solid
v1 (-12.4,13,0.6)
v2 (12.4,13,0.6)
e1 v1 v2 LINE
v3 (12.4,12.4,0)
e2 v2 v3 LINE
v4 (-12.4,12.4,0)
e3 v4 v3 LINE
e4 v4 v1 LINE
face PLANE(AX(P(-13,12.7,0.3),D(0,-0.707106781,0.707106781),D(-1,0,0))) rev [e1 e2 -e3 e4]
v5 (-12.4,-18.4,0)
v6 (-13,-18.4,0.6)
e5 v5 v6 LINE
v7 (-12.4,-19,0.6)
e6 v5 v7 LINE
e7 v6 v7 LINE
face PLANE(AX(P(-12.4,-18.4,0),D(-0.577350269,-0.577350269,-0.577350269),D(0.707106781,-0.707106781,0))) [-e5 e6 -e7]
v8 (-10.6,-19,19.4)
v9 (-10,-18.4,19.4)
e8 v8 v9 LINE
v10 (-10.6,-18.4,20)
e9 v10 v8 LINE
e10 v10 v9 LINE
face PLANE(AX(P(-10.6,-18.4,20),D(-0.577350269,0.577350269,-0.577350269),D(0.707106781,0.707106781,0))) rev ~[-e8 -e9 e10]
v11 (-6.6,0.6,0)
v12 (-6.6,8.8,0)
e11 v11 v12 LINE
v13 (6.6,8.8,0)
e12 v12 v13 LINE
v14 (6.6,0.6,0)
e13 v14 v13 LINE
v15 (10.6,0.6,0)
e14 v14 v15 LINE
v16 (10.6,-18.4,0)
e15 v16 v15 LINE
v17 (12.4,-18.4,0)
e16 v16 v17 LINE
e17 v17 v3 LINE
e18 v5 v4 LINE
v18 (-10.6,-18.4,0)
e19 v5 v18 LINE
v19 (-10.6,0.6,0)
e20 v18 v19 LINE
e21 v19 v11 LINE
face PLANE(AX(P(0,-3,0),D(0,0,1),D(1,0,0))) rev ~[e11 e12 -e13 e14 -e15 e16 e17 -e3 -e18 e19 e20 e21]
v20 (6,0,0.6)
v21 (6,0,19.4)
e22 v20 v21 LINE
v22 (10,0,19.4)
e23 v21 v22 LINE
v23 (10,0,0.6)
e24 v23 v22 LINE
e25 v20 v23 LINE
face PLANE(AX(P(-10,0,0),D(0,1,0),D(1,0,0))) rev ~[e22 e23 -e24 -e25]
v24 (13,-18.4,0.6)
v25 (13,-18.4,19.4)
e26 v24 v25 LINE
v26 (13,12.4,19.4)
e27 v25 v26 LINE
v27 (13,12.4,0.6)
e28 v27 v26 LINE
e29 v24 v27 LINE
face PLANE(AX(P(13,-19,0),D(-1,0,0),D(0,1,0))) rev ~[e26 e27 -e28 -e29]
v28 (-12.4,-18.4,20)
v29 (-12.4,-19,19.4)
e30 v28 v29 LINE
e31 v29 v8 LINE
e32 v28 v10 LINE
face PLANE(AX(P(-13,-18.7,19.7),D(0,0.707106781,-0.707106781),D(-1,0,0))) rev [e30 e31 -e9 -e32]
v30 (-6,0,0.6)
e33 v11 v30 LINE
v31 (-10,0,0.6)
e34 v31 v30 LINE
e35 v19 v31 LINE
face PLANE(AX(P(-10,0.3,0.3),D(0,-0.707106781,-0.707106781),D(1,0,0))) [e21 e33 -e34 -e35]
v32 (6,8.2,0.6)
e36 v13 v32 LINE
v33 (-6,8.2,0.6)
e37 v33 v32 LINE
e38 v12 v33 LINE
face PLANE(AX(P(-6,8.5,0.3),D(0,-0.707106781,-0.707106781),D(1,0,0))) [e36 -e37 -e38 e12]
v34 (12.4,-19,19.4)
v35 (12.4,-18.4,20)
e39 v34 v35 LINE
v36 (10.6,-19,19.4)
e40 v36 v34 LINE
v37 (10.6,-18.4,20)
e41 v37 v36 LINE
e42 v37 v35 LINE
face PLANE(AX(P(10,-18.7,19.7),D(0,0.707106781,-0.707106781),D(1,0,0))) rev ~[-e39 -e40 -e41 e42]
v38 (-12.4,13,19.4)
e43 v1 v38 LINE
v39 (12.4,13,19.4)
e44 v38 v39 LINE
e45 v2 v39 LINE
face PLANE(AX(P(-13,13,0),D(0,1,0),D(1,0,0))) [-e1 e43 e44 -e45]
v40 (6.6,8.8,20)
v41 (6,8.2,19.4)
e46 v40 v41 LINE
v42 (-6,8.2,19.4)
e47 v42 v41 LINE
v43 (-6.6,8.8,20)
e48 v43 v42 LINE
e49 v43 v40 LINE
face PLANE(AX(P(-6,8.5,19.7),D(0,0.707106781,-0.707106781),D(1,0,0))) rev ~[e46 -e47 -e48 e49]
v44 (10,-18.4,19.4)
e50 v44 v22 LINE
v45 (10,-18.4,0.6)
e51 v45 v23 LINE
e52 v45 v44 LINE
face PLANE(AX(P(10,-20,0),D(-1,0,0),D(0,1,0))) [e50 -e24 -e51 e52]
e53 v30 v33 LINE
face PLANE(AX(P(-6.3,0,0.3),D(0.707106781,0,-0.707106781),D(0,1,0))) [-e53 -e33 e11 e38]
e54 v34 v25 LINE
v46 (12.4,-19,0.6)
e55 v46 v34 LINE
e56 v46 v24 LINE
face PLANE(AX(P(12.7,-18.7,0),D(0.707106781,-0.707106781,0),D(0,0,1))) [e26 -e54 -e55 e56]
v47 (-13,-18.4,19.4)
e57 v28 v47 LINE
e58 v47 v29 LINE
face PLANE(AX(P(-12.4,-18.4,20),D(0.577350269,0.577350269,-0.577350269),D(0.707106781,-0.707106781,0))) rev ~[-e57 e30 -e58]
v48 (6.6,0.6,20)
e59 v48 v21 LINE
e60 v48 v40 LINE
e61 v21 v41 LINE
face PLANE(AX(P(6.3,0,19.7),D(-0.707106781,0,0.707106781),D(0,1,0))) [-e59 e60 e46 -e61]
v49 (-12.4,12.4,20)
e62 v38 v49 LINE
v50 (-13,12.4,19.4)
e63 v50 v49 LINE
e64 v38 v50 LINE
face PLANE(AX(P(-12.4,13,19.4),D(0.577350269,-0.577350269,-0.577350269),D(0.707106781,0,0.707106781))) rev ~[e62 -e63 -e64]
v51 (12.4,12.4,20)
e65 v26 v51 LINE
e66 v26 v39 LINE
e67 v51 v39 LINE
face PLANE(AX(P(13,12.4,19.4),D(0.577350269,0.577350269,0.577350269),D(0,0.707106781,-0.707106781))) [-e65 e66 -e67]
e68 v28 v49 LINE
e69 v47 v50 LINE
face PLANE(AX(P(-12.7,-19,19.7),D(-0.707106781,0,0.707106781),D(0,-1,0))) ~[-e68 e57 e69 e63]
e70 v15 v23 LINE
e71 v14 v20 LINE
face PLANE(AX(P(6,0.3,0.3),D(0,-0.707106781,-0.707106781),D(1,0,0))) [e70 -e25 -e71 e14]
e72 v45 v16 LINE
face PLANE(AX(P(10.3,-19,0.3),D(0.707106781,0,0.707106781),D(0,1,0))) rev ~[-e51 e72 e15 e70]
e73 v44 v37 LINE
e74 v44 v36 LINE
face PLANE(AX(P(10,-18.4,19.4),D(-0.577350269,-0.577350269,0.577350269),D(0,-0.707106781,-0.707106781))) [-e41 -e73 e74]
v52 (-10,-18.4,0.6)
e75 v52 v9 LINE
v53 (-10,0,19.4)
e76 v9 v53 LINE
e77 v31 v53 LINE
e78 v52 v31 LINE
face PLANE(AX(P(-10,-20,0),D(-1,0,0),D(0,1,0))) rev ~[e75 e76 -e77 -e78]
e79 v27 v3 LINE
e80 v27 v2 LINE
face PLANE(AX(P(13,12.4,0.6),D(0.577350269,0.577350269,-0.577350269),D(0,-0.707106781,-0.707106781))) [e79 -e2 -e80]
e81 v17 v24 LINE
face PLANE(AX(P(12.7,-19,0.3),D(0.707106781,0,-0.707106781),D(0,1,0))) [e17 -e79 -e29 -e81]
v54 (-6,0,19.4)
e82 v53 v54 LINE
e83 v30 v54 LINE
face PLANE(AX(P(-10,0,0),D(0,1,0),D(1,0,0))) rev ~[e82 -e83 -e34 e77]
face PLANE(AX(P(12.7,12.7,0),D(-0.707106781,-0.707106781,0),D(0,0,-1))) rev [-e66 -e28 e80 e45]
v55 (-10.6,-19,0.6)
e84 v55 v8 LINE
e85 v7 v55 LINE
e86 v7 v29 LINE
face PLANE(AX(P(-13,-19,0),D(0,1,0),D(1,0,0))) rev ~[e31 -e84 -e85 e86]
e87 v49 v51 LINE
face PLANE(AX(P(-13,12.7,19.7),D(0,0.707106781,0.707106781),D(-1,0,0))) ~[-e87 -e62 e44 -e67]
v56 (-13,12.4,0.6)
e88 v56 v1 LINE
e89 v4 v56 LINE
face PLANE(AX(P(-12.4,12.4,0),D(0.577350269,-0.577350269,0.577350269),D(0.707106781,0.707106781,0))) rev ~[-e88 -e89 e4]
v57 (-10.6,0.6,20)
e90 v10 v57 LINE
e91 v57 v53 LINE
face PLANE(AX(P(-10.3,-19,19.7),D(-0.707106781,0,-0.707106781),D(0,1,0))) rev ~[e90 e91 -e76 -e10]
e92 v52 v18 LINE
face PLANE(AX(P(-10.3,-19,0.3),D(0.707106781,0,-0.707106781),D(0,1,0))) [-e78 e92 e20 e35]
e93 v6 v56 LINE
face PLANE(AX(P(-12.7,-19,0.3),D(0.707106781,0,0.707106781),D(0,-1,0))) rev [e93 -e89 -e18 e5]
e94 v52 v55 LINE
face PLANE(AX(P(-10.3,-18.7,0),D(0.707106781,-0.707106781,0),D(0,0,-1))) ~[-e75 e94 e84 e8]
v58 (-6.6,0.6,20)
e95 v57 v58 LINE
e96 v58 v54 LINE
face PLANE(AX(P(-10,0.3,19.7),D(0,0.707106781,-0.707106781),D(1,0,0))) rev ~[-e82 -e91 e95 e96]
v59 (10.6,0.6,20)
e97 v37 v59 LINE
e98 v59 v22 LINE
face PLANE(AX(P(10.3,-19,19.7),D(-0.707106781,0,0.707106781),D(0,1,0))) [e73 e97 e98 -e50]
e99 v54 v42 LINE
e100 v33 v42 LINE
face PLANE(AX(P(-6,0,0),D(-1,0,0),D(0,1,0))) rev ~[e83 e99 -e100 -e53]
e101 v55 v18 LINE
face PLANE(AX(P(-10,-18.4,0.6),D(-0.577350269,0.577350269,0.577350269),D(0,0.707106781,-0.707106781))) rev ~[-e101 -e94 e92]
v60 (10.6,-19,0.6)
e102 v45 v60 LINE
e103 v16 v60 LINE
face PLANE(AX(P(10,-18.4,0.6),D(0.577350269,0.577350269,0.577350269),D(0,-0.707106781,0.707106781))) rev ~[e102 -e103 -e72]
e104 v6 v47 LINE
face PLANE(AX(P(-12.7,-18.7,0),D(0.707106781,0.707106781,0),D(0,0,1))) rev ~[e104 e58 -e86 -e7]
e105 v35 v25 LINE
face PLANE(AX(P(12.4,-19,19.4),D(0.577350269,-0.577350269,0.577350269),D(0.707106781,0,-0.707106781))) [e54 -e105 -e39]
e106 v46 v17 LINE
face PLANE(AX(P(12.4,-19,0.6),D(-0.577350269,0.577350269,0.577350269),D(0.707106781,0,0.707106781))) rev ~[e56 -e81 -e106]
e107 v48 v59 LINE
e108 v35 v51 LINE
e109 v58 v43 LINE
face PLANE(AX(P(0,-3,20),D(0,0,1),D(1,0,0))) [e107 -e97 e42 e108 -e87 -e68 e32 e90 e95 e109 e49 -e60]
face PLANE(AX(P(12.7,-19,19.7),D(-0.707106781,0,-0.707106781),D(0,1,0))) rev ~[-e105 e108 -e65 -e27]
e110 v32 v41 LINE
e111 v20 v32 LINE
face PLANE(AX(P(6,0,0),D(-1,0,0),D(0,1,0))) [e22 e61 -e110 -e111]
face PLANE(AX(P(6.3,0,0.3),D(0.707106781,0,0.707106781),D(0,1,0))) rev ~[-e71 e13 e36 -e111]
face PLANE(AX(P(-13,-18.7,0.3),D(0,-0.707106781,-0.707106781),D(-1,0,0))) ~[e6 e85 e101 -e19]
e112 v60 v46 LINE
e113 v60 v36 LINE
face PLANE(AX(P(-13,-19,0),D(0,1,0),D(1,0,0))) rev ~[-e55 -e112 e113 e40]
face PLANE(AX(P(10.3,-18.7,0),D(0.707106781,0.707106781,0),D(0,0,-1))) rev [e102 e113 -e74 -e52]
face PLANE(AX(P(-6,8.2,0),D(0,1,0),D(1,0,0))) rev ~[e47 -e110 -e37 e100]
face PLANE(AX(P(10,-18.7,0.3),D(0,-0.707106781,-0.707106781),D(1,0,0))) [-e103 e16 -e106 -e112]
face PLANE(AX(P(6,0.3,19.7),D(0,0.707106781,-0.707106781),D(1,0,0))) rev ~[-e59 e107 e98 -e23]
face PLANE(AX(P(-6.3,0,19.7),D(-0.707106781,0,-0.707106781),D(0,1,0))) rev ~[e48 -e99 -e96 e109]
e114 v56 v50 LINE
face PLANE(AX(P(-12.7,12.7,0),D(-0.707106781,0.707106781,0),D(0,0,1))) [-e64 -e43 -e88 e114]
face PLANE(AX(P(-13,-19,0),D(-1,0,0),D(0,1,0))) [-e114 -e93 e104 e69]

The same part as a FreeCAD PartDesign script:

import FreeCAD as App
import Part
import Sketcher

V = App.Vector


def edges_at(feature, points):
    """Names of the edges that pass closest to the given points."""
    edges = feature.Shape.Edges
    near = lambda p: min(range(len(edges)), key=lambda i: edges[i].distToShape(Part.Vertex(*p))[0])
    return sorted({f"Edge{near(p) + 1}" for p in points})


def add_polygon(sketch, points):
    """Adds a closed chain of lines whose ends are joined by coincident constraints."""
    first, n = sketch.GeometryCount, len(points)
    for a, b in zip(points, points[1:] + points[:1]):
        sketch.addGeometry(Part.LineSegment(App.Vector(*a, 0), App.Vector(*b, 0)), False)
    for i in range(n):
        sketch.addConstraint(Sketcher.Constraint("Coincident", first + i, 2, first + (i + 1) % n, 1))

doc = App.newDocument("Part")
body = doc.addObject("PartDesign::Body", "Body")

# Sketch on XY plane
sketch1 = body.newObject("Sketcher::SketchObject", "Sketch")
sketch1.AttachmentSupport = (doc.getObject("XY_Plane"), [""])
sketch1.MapMode = "FlatFace"
add_polygon(sketch1, [(-10, 0), (-10, -20), (10, -20), (10, 0)])  # lines 0-3
sketch1.addConstraint([
    Sketcher.Constraint("Vertical", 0),
    Sketcher.Constraint("Horizontal", 1),
    Sketcher.Constraint("Vertical", 2),
    Sketcher.Constraint("Horizontal", 3),
    Sketcher.Constraint("Symmetric", 2, 2, 3, 2, -1, 1),
    Sketcher.Constraint("Equal", 3, 0),
    Sketcher.Constraint("DistanceX", 1, 1, 1, 2, 20.0),
])
pad1 = body.newObject("PartDesign::Pad", "Pad")
pad1.Profile = sketch1
pad1.Length = 20
body2 = doc.addObject("PartDesign::Body", "Body001")

# Sketch on XY plane
sketch2 = body2.newObject("Sketcher::SketchObject", "Sketch001")
sketch2.AttachmentSupport = (doc.getObject("XY_Plane001"), [""])
sketch2.MapMode = "FlatFace"
add_polygon(sketch2, [(-6, 8.2), (-6, 0), (6, 0), (6, 8.2)])  # lines 0-3
sketch2.addConstraint([
    Sketcher.Constraint("Vertical", 0),
    Sketcher.Constraint("Horizontal", 1),
    Sketcher.Constraint("Vertical", 2),
    Sketcher.Constraint("Horizontal", 3),
    Sketcher.Constraint("Symmetric", 0, 2, 1, 2, -1, 1),
    Sketcher.Constraint("DistanceX", 1, 1, 1, 2, 12.0),
    Sketcher.Constraint("DistanceY", 0, 2, 0, 1, 8.2),
])
pad2 = body2.newObject("PartDesign::Pad", "Pad001")
pad2.Profile = sketch2
pad2.Length = 20
doc.recompute()

boolean = body2.newObject("PartDesign::Boolean", "Boolean")
boolean.Type = "Fuse"
boolean.addObjects([body])
body3 = doc.addObject("PartDesign::Body", "Body002")

# Sketch on XY plane
sketch3 = body3.newObject("Sketcher::SketchObject", "Sketch002")
sketch3.AttachmentSupport = (doc.getObject("XY_Plane002"), [""])
sketch3.MapMode = "FlatFace"
add_polygon(sketch3, [(-13, 13), (-13, -19), (13, -19), (13, 13)])  # lines 0-3
sketch3.addConstraint([
    Sketcher.Constraint("Vertical", 0),
    Sketcher.Constraint("Horizontal", 1),
    Sketcher.Constraint("Vertical", 2),
    Sketcher.Constraint("Horizontal", 3),
    Sketcher.Constraint("DistanceX", 1, 1, 1, 2, 26.0),
    Sketcher.Constraint("DistanceY", 0, 2, 0, 1, 32.0),
    Sketcher.Constraint("DistanceX", 0, 2, -1, 1, 13.0),
    Sketcher.Constraint("DistanceY", 0, 2, -1, 1, 19.0),
])
pad3 = body3.newObject("PartDesign::Pad", "Pad002")
pad3.Profile = sketch3
pad3.Length = 20
doc.recompute()

boolean2 = body3.newObject("PartDesign::Boolean", "Boolean001")
boolean2.Type = "Cut"
boolean2.addObjects([body2])
doc.recompute()

chamfer = body3.newObject("PartDesign::Chamfer", "Chamfer")
chamfer.Base = (boolean2, edges_at(boolean2, [
    (-13, -19, 10),
    (-13, -3, 20),
    (-13, 13, 10),
    (-13, -3, 0),
    (-11.5, -19, 0),
    (-10, -19, 10),
    (-11.5, -19, 20),
    (0, 13, 20),
    (13, -3, 20),
    (11.5, -19, 20),
    (10, -9.5, 20),
    (8, 0, 20),
    (6, 4.1, 20),
    (0, 8.2, 20),
    (-6, 4.1, 20),
    (-8, 0, 20),
    (-10, -9.5, 20),
    (0, 13, 0),
    (13, 13, 10),
    (13, -3, 0),
    (11.5, -19, 0),
    (10, -9.5, 0),
    (8, 0, 0),
    (6, 4.1, 0),
    (0, 8.2, 0),
    (-6, 4.1, 0),
    (-8, 0, 0),
    (-10, -9.5, 0),
    (13, -19, 10),
    (10, -19, 10),
]))
chamfer.Size = 0.6

doc.recompute()
